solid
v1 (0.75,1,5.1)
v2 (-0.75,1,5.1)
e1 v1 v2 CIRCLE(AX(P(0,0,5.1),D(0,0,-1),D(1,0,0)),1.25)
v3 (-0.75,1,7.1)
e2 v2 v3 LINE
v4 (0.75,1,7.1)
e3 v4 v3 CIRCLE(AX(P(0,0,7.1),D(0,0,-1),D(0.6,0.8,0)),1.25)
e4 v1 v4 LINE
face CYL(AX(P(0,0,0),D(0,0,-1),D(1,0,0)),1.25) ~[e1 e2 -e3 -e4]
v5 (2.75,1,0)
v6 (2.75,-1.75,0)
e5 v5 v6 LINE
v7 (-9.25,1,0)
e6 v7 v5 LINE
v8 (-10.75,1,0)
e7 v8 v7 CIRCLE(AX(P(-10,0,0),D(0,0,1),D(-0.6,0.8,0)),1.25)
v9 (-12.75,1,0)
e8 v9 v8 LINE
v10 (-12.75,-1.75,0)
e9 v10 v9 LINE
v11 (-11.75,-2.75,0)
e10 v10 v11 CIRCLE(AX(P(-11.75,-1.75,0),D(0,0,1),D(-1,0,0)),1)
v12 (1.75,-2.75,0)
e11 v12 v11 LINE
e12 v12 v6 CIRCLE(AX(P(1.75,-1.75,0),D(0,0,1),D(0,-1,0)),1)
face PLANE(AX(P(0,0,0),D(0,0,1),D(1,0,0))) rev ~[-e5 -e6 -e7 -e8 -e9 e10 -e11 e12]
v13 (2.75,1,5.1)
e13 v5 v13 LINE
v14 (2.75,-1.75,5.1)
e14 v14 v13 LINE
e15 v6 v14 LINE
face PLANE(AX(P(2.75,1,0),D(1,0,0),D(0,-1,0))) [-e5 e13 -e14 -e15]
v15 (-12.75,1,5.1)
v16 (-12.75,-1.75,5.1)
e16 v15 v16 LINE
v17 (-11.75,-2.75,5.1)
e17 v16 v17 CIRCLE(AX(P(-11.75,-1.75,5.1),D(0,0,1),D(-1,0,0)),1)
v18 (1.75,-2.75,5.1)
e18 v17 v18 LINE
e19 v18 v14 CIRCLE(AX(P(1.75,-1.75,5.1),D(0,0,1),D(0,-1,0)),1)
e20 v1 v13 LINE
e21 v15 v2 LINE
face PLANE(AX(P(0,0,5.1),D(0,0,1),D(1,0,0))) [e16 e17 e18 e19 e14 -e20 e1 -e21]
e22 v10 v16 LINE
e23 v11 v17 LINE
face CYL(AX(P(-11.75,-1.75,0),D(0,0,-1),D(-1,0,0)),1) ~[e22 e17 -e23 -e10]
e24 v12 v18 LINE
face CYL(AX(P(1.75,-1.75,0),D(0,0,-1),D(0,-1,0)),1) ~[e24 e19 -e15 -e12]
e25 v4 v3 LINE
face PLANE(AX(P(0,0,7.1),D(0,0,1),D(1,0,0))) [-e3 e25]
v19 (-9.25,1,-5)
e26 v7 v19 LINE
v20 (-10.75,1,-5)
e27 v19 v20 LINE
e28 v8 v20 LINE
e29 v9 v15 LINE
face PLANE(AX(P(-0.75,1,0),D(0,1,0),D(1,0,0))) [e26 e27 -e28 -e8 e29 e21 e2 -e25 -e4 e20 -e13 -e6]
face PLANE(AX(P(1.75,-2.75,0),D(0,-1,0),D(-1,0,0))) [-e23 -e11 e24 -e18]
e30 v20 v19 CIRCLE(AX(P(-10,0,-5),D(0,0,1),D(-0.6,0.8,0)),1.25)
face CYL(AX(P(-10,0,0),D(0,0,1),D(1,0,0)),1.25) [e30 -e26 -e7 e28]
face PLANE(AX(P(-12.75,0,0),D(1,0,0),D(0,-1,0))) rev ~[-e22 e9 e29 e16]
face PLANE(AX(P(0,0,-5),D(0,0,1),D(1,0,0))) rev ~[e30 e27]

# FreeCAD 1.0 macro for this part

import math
import FreeCAD as App
import Part
import Sketcher
from FreeCAD import Vector

doc = App.newDocument("Part")
body = doc.addObject("PartDesign::Body", "Body")

# Sketch on XY plane
sketch1 = doc.addObject("Sketcher::SketchObject", "Sketch")
body.addObject(sketch1)
sketch1.AttachmentSupport = (doc.XY_Plane, [""])
sketch1.MapMode = "FlatFace"
sketch1.addGeometry([
    Part.LineSegment(Vector(0.8, 1, 0), Vector(-0.8, 1, 0)),
    Part.ArcOfCircle(Part.Circle(Vector(0, 0, 0), Vector(0, 0, 1), 1.2), math.radians(127), math.radians(413)),
], False)
sketch1.addConstraint([
    Sketcher.Constraint("Coincident", 0, 1, 1, 2),
    Sketcher.Constraint("Coincident", 1, 1, 0, 2),
    Sketcher.Constraint("Horizontal", 0),
    Sketcher.Constraint("Coincident", 1, 3, -1, 1),
    Sketcher.Constraint("Radius", 1, 1.25),
    Sketcher.Constraint("DistanceY", -1, 1, 0, 1, 1.0),
])
pad1 = doc.addObject("PartDesign::Pad", "Pad")
body.addObject(pad1)
pad1.Profile = sketch1
pad1.Length = 7.1

# Sketch on XY plane
sketch2 = doc.addObject("Sketcher::SketchObject", "Sketch001")
body.addObject(sketch2)
sketch2.AttachmentSupport = (doc.XY_Plane, [""])
sketch2.MapMode = "FlatFace"
sketch2.addGeometry([
    Part.LineSegment(Vector(-12.8, 1, 0), Vector(-12.8, -1.8, 0)),  # 0
    Part.ArcOfCircle(Part.Circle(Vector(-11.8, -1.8, 0), Vector(0, 0, 1), 1), math.radians(180), math.radians(270)),  # 1
    Part.LineSegment(Vector(-11.8, -2.8, 0), Vector(1.8, -2.8, 0)),  # 2
    Part.ArcOfCircle(Part.Circle(Vector(1.8, -1.8, 0), Vector(0, 0, 1), 1), math.radians(-90), math.radians(0)),  # 3
    Part.LineSegment(Vector(2.8, -1.8, 0), Vector(2.8, 1, 0)),  # 4
    Part.LineSegment(Vector(2.8, 1, 0), Vector(-12.8, 1, 0)),  # 5
], False)
sketch2.addConstraint([
    Sketcher.Constraint("Tangent", 0, 2, 1, 1),
    Sketcher.Constraint("Tangent", 1, 2, 2, 1),
    Sketcher.Constraint("Tangent", 2, 2, 3, 1),
    Sketcher.Constraint("Tangent", 3, 2, 4, 1),
    Sketcher.Constraint("Coincident", 4, 2, 5, 1),
    Sketcher.Constraint("Coincident", 5, 2, 0, 1),
    Sketcher.Constraint("Vertical", 0),
    Sketcher.Constraint("Horizontal", 2),
    Sketcher.Constraint("Vertical", 4),
    Sketcher.Constraint("Horizontal", 5),
    Sketcher.Constraint("Equal", 1, 3),
    Sketcher.Constraint("Radius", 1, 1.0),
    Sketcher.Constraint("DistanceY", -1, 1, 4, 2, 1.0),
    Sketcher.Constraint("DistanceX", 2, 1, 2, 2, 13.5),
    Sketcher.Constraint("DistanceY", 0, 2, 0, 1, 2.75),
    Sketcher.Constraint("DistanceX", 1, 3, -1, 1, 11.75),
])
pad2 = doc.addObject("PartDesign::Pad", "Pad001")
body.addObject(pad2)
pad2.Profile = sketch2
pad2.Length = 5.1

# Sketch on XY plane
sketch3 = doc.addObject("Sketcher::SketchObject", "Sketch002")
body.addObject(sketch3)
sketch3.AttachmentSupport = (doc.XY_Plane, [""])
sketch3.MapMode = "FlatFace"
sketch3.addGeometry([
    Part.ArcOfCircle(Part.Circle(Vector(-10, 0, 0), Vector(0, 0, 1), 1.2), math.radians(127), math.radians(413)),
    Part.LineSegment(Vector(-9.2, 1, 0), Vector(-10.8, 1, 0)),
], False)
sketch3.addConstraint([
    Sketcher.Constraint("Coincident", 0, 1, 1, 2),
    Sketcher.Constraint("Coincident", 1, 1, 0, 2),
    Sketcher.Constraint("Horizontal", 1),
    Sketcher.Constraint("PointOnObject", 0, 3, -1),
    Sketcher.Constraint("Radius", 0, 1.25),
    Sketcher.Constraint("DistanceX", 0, 3, -1, 1, 10.0),
    Sketcher.Constraint("DistanceY", -1, 1, 0, 1, 1.0),
])
pad3 = doc.addObject("PartDesign::Pad", "Pad002")
body.addObject(pad3)
pad3.Profile = sketch3
pad3.Length = 5
pad3.Reversed = True

doc.recompute()
